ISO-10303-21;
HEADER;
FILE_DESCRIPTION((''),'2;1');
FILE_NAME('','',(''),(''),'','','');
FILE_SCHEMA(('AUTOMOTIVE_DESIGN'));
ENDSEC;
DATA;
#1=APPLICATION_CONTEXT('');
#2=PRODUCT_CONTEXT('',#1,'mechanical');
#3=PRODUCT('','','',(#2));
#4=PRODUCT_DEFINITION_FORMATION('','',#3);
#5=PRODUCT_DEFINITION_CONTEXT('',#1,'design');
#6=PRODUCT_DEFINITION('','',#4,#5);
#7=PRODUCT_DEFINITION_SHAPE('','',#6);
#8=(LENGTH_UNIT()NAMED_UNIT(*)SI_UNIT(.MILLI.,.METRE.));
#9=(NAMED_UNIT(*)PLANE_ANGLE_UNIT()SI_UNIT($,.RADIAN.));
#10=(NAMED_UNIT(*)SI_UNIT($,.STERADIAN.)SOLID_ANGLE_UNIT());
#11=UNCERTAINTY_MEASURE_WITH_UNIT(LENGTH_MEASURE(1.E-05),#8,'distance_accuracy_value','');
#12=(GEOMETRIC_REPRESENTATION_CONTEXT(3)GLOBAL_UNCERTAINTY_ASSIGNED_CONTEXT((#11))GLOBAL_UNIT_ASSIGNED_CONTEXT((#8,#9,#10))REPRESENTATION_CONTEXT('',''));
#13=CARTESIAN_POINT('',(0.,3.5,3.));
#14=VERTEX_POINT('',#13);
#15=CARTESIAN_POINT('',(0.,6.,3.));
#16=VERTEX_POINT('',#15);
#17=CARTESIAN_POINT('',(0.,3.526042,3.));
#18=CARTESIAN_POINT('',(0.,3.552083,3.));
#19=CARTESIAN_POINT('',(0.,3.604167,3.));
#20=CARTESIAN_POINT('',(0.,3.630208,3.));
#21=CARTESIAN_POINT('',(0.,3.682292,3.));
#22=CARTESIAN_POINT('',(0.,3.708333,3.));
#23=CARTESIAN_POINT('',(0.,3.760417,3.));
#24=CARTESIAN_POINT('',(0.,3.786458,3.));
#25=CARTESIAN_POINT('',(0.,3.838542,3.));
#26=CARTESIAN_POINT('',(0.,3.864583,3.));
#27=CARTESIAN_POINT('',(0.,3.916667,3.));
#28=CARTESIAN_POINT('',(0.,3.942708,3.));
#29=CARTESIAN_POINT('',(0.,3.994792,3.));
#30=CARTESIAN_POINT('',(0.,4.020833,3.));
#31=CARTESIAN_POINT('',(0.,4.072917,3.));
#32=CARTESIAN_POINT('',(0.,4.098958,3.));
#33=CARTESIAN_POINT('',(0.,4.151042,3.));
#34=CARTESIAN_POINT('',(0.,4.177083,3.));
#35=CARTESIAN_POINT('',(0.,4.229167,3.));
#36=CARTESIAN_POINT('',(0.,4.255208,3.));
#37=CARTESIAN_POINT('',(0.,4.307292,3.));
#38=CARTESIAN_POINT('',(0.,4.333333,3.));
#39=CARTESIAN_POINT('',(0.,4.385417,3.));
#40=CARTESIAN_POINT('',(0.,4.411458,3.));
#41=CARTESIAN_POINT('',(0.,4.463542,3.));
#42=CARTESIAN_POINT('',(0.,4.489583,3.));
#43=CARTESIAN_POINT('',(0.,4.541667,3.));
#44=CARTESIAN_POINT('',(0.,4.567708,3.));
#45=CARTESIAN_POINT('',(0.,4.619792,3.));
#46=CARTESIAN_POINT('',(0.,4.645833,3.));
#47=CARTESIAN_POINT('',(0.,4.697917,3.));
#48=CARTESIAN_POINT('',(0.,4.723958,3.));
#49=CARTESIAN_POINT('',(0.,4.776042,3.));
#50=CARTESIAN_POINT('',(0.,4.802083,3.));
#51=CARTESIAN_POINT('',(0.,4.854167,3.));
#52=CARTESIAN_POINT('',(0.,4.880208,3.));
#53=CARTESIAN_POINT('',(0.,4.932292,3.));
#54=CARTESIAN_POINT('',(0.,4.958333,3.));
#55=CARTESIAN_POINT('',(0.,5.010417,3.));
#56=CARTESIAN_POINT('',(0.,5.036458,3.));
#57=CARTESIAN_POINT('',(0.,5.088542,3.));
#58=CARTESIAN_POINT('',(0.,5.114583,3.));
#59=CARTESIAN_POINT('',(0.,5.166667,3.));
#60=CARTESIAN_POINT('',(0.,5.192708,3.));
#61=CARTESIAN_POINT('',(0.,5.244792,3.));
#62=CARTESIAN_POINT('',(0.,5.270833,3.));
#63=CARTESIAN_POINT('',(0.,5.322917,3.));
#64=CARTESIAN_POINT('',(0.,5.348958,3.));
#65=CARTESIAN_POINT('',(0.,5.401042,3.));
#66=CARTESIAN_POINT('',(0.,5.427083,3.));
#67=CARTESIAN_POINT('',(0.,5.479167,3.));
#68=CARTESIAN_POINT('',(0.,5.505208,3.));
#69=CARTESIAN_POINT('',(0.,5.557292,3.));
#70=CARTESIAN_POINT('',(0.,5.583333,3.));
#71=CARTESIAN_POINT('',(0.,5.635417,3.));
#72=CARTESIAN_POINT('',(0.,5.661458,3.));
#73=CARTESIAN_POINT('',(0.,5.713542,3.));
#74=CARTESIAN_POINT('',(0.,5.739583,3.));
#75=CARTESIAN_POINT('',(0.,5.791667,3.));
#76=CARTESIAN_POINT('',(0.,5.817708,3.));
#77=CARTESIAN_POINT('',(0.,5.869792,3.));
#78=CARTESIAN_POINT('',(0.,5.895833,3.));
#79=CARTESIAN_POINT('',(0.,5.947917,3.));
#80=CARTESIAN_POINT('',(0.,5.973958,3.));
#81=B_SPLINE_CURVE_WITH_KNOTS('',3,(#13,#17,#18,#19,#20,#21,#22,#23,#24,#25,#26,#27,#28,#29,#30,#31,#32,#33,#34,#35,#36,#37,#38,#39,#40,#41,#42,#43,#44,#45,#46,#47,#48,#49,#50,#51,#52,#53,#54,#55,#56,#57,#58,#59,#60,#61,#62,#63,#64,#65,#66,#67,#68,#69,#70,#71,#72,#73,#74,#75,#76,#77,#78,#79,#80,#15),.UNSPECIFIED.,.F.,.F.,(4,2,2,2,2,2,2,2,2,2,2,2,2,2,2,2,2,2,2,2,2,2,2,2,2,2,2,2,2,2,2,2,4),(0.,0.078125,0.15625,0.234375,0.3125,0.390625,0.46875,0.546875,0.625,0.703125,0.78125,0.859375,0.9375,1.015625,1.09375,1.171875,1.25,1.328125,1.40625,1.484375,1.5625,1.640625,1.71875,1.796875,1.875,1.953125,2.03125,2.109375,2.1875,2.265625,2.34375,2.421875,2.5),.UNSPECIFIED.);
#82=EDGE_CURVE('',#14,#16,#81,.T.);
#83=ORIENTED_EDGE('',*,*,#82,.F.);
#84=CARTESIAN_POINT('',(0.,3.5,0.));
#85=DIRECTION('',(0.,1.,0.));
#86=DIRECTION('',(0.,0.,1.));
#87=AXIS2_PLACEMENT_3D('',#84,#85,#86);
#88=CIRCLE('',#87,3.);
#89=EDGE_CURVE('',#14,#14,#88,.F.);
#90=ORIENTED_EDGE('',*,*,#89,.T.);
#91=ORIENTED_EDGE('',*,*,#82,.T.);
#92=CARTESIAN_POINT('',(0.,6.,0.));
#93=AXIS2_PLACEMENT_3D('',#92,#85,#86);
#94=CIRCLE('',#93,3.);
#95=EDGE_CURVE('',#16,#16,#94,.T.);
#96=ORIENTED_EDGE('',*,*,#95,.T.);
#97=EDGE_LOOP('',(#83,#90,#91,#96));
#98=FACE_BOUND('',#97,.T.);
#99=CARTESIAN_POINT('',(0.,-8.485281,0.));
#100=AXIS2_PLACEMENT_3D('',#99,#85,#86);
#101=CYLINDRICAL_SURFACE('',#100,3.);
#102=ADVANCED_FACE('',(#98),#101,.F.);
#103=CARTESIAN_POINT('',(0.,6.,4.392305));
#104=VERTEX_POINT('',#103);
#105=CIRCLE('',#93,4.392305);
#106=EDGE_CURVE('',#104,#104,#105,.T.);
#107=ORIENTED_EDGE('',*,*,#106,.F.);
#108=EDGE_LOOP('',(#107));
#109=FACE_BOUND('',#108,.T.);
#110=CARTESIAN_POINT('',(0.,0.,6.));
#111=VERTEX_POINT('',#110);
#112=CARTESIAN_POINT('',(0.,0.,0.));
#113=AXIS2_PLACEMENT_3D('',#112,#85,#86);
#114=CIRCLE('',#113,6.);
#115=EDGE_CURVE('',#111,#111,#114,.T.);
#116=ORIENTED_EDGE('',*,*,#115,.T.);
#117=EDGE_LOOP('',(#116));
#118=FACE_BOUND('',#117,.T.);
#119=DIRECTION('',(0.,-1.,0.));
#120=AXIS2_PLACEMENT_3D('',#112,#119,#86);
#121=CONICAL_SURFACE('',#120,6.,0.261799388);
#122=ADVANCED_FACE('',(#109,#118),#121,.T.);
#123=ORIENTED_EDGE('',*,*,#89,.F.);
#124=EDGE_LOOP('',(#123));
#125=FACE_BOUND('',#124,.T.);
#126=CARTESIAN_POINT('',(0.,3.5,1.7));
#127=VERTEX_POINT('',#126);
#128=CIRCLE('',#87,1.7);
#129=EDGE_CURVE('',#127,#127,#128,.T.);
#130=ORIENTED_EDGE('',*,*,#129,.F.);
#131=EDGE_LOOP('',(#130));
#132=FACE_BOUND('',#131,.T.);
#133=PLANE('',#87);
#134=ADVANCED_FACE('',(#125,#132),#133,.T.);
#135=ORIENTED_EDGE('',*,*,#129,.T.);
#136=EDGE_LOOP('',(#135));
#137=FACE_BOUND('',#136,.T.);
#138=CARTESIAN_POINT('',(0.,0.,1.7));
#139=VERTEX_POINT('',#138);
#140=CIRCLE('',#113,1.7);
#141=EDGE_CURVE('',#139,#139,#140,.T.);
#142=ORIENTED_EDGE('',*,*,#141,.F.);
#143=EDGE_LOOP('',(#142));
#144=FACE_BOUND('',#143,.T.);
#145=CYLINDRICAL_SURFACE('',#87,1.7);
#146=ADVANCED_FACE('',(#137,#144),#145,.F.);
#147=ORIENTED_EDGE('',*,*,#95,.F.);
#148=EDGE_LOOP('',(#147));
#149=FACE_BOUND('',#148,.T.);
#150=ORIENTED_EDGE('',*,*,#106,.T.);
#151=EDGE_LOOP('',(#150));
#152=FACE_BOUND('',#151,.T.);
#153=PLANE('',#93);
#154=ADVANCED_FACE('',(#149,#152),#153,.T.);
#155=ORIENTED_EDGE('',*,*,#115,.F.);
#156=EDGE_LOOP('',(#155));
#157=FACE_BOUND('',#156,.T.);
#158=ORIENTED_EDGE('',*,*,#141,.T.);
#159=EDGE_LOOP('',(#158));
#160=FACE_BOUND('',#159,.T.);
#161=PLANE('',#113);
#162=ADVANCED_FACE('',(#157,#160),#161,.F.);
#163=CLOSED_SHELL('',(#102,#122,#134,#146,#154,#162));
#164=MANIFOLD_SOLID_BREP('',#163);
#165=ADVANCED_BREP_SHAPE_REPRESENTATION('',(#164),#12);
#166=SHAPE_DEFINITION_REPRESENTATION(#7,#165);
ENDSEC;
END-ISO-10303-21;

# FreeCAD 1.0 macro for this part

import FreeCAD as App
import Part
import Sketcher
from FreeCAD import Vector

doc = App.newDocument("Part")
body = doc.addObject("PartDesign::Body", "Body")

# Sketch on XZ plane
sketch1 = body.newObject("Sketcher::SketchObject", "Sketch")
sketch1.AttachmentSupport = (doc.getObject("XZ_Plane"), [""])
sketch1.MapMode = "FlatFace"
sketch1.addGeometry(Part.Circle(Vector(0, 0, 0), Vector(0, 0, 1), 6), False)
sketch1.addConstraint([
    Sketcher.Constraint("Coincident", 0, 3, -1, 1),
    Sketcher.Constraint("Diameter", 0, 12.0),
])
pad1 = body.newObject("PartDesign::Pad", "Pad")
pad1.Profile = sketch1
pad1.Length = 6
pad1.Reversed = True
pad1.TaperAngle = -15

# Sketch on XZ plane
sketch2 = body.newObject("Sketcher::SketchObject", "Sketch001")
sketch2.AttachmentSupport = (doc.getObject("XZ_Plane"), [""])
sketch2.MapMode = "FlatFace"
sketch2.AttachmentOffset = App.Placement(Vector(0, 0, -6), App.Rotation())
sketch2.addGeometry(Part.Circle(Vector(0, 0, 0), Vector(0, 0, 1), 3), False)
sketch2.addConstraint([
    Sketcher.Constraint("Coincident", 0, 3, -1, 1),
    Sketcher.Constraint("Diameter", 0, 6.0),
])
pocket1 = body.newObject("PartDesign::Pocket", "Pocket")
pocket1.Profile = sketch2
pocket1.Length = 2.5
pocket1.Reversed = True

# Sketch on XZ plane
sketch3 = body.newObject("Sketcher::SketchObject", "Sketch002")
sketch3.AttachmentSupport = (doc.getObject("XZ_Plane"), [""])
sketch3.MapMode = "FlatFace"
sketch3.AttachmentOffset = App.Placement(Vector(0, 0, -3.5), App.Rotation())
sketch3.addGeometry(Part.Circle(Vector(0, 0, 0), Vector(0, 0, 1), 1.7), False)
sketch3.addConstraint([
    Sketcher.Constraint("Coincident", 0, 3, -1, 1),
    Sketcher.Constraint("Diameter", 0, 3.4),
])
doc.recompute()
hole = body.newObject("PartDesign::Hole", "Hole")
hole.Profile = sketch3
hole.ThreadType = "None"
hole.Diameter = 3.4
hole.DepthType = "ThroughAll"
hole.Reversed = True

doc.recompute()
